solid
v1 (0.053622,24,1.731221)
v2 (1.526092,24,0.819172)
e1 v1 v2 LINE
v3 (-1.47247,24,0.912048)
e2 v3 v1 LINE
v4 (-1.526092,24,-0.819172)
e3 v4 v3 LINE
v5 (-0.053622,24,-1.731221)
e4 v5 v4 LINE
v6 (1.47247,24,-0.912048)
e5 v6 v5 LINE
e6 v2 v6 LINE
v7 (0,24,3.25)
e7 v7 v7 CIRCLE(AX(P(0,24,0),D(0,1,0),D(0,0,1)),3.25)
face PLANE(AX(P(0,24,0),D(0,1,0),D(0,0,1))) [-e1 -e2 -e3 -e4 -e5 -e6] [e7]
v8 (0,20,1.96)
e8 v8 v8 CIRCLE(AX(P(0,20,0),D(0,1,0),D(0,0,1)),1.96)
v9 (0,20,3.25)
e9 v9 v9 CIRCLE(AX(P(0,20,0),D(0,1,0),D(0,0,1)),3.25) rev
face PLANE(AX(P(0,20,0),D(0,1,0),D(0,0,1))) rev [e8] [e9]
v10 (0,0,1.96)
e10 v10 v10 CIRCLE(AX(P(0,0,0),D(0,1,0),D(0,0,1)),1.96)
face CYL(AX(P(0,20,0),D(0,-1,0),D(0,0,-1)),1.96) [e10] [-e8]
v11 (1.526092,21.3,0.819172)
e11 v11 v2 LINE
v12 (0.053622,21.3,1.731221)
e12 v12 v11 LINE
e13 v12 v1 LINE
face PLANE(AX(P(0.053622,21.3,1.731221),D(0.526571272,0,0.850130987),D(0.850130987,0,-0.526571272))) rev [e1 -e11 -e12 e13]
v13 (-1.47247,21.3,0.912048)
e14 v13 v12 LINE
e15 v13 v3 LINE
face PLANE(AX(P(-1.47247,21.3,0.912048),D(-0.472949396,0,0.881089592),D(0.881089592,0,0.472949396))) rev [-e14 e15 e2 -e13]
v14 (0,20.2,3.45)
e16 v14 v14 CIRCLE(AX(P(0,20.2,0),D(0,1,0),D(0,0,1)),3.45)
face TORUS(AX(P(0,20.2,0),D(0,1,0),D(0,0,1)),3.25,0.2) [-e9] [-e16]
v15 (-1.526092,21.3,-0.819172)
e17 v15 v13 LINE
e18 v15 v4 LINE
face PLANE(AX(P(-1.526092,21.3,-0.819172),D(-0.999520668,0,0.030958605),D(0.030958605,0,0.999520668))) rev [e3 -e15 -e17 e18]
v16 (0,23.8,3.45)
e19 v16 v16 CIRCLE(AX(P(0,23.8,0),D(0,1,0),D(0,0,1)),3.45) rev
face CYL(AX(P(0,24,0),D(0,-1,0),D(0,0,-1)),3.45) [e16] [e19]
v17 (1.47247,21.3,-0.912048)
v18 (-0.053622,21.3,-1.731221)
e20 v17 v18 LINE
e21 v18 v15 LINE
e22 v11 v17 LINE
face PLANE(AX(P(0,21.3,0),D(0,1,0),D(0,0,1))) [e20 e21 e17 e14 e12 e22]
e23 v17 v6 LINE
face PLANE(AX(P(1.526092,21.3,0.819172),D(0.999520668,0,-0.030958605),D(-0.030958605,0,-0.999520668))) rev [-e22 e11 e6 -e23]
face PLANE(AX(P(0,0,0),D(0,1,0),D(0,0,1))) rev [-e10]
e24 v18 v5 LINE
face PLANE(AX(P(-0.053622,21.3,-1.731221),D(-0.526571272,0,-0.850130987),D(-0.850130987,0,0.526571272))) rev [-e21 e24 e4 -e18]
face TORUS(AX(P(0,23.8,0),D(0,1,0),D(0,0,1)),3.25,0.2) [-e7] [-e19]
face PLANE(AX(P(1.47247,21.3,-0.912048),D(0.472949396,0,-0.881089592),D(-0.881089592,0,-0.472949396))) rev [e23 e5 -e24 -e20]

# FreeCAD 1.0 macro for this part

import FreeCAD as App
import Part
import Sketcher
from FreeCAD import Vector


def edges_at(feature, points):
    """Names of the edges that pass closest to the given points."""
    edges = feature.Shape.Edges
    near = lambda p: min(range(len(edges)), key=lambda i: edges[i].distToShape(Part.Vertex(*p))[0])
    return sorted({f"Edge{near(p) + 1}" for p in points})


def add_polygon(sketch, points):
    """Adds a closed chain of lines whose ends are joined by coincident constraints."""
    first, n = sketch.GeometryCount, len(points)
    for a, b in zip(points, points[1:] + points[:1]):
        sketch.addGeometry(Part.LineSegment(App.Vector(*a, 0), App.Vector(*b, 0)), False)
    for i in range(n):
        sketch.addConstraint(Sketcher.Constraint("Coincident", first + i, 2, first + (i + 1) % n, 1))

doc = App.newDocument("Part")
body = doc.addObject("PartDesign::Body", "Body")

sketch1 = body.newObject("Sketcher::SketchObject", "Sketch")
sketch1.AttachmentSupport = (doc.getObject("XZ_Plane"), [""])
sketch1.MapMode = "FlatFace"
sketch1.addGeometry(Part.Circle(Vector(0, 0, 0), Vector(0, 0, 1), 2), False)
sketch1.addConstraint([
    Sketcher.Constraint("Coincident", 0, 3, -1, 1),
    Sketcher.Constraint("Diameter", 0, 3.92),
])
pad1 = body.newObject("PartDesign::Pad", "Pad")
pad1.Profile = sketch1
pad1.Length = 20
pad1.Reversed = True

sketch2 = body.newObject("Sketcher::SketchObject", "Sketch001")
sketch2.AttachmentSupport = (doc.getObject("XZ_Plane"), [""])
sketch2.MapMode = "FlatFace"
sketch2.AttachmentOffset = App.Placement(Vector(0, 0, -20), App.Rotation())
sketch2.addGeometry(Part.Circle(Vector(0, 0, 0), Vector(0, 0, 1), 3.5), False)
sketch2.addConstraint([
    Sketcher.Constraint("Coincident", 0, 3, -1, 1),
    Sketcher.Constraint("Diameter", 0, 6.9),
])
pad2 = body.newObject("PartDesign::Pad", "Pad001")
pad2.Profile = sketch2
pad2.Length = 4
pad2.Reversed = True

sketch3 = body.newObject("Sketcher::SketchObject", "Sketch002")
sketch3.AttachmentSupport = (doc.getObject("XZ_Plane"), [""])
sketch3.MapMode = "FlatFace"
sketch3.AttachmentOffset = App.Placement(Vector(0, 0, -24), App.Rotation())
add_polygon(sketch3, [(-0.1, -1.7), (-1.5, -0.8), (-1.5, 0.9), (0.1, 1.7), (1.5, 0.8), (1.5, -0.9)])
sketch3.addConstraint([
    Sketcher.Constraint("Symmetric", 0, 2, 3, 2, -1, 1),
    Sketcher.Constraint("Symmetric", 1, 2, 4, 2, -1, 1),
    Sketcher.Constraint("Symmetric", 2, 2, 5, 2, -1, 1),
    Sketcher.Constraint("Equal", 0, 1),
    Sketcher.Constraint("Equal", 1, 2),
    Sketcher.Constraint("Distance", 0, 1.732051),
    Sketcher.Constraint("DistanceX", 0, 2, -1, 1, 1.526092),
    Sketcher.Constraint("DistanceX", 1, 2, -1, 1, 1.47247),
    Sketcher.Constraint("DistanceY", -1, 1, 1, 2, 0.912048),
])
pocket1 = body.newObject("PartDesign::Pocket", "Pocket")
pocket1.Profile = sketch3
pocket1.Length = 2.7
pocket1.Reversed = True
doc.recompute()

fillet = body.newObject("PartDesign::Fillet", "Fillet")
fillet.Base = (pocket1, edges_at(pocket1, [(0, 20, -3.45), (0, 24, -3.45)]))
fillet.Radius = 0.2

doc.recompute()
